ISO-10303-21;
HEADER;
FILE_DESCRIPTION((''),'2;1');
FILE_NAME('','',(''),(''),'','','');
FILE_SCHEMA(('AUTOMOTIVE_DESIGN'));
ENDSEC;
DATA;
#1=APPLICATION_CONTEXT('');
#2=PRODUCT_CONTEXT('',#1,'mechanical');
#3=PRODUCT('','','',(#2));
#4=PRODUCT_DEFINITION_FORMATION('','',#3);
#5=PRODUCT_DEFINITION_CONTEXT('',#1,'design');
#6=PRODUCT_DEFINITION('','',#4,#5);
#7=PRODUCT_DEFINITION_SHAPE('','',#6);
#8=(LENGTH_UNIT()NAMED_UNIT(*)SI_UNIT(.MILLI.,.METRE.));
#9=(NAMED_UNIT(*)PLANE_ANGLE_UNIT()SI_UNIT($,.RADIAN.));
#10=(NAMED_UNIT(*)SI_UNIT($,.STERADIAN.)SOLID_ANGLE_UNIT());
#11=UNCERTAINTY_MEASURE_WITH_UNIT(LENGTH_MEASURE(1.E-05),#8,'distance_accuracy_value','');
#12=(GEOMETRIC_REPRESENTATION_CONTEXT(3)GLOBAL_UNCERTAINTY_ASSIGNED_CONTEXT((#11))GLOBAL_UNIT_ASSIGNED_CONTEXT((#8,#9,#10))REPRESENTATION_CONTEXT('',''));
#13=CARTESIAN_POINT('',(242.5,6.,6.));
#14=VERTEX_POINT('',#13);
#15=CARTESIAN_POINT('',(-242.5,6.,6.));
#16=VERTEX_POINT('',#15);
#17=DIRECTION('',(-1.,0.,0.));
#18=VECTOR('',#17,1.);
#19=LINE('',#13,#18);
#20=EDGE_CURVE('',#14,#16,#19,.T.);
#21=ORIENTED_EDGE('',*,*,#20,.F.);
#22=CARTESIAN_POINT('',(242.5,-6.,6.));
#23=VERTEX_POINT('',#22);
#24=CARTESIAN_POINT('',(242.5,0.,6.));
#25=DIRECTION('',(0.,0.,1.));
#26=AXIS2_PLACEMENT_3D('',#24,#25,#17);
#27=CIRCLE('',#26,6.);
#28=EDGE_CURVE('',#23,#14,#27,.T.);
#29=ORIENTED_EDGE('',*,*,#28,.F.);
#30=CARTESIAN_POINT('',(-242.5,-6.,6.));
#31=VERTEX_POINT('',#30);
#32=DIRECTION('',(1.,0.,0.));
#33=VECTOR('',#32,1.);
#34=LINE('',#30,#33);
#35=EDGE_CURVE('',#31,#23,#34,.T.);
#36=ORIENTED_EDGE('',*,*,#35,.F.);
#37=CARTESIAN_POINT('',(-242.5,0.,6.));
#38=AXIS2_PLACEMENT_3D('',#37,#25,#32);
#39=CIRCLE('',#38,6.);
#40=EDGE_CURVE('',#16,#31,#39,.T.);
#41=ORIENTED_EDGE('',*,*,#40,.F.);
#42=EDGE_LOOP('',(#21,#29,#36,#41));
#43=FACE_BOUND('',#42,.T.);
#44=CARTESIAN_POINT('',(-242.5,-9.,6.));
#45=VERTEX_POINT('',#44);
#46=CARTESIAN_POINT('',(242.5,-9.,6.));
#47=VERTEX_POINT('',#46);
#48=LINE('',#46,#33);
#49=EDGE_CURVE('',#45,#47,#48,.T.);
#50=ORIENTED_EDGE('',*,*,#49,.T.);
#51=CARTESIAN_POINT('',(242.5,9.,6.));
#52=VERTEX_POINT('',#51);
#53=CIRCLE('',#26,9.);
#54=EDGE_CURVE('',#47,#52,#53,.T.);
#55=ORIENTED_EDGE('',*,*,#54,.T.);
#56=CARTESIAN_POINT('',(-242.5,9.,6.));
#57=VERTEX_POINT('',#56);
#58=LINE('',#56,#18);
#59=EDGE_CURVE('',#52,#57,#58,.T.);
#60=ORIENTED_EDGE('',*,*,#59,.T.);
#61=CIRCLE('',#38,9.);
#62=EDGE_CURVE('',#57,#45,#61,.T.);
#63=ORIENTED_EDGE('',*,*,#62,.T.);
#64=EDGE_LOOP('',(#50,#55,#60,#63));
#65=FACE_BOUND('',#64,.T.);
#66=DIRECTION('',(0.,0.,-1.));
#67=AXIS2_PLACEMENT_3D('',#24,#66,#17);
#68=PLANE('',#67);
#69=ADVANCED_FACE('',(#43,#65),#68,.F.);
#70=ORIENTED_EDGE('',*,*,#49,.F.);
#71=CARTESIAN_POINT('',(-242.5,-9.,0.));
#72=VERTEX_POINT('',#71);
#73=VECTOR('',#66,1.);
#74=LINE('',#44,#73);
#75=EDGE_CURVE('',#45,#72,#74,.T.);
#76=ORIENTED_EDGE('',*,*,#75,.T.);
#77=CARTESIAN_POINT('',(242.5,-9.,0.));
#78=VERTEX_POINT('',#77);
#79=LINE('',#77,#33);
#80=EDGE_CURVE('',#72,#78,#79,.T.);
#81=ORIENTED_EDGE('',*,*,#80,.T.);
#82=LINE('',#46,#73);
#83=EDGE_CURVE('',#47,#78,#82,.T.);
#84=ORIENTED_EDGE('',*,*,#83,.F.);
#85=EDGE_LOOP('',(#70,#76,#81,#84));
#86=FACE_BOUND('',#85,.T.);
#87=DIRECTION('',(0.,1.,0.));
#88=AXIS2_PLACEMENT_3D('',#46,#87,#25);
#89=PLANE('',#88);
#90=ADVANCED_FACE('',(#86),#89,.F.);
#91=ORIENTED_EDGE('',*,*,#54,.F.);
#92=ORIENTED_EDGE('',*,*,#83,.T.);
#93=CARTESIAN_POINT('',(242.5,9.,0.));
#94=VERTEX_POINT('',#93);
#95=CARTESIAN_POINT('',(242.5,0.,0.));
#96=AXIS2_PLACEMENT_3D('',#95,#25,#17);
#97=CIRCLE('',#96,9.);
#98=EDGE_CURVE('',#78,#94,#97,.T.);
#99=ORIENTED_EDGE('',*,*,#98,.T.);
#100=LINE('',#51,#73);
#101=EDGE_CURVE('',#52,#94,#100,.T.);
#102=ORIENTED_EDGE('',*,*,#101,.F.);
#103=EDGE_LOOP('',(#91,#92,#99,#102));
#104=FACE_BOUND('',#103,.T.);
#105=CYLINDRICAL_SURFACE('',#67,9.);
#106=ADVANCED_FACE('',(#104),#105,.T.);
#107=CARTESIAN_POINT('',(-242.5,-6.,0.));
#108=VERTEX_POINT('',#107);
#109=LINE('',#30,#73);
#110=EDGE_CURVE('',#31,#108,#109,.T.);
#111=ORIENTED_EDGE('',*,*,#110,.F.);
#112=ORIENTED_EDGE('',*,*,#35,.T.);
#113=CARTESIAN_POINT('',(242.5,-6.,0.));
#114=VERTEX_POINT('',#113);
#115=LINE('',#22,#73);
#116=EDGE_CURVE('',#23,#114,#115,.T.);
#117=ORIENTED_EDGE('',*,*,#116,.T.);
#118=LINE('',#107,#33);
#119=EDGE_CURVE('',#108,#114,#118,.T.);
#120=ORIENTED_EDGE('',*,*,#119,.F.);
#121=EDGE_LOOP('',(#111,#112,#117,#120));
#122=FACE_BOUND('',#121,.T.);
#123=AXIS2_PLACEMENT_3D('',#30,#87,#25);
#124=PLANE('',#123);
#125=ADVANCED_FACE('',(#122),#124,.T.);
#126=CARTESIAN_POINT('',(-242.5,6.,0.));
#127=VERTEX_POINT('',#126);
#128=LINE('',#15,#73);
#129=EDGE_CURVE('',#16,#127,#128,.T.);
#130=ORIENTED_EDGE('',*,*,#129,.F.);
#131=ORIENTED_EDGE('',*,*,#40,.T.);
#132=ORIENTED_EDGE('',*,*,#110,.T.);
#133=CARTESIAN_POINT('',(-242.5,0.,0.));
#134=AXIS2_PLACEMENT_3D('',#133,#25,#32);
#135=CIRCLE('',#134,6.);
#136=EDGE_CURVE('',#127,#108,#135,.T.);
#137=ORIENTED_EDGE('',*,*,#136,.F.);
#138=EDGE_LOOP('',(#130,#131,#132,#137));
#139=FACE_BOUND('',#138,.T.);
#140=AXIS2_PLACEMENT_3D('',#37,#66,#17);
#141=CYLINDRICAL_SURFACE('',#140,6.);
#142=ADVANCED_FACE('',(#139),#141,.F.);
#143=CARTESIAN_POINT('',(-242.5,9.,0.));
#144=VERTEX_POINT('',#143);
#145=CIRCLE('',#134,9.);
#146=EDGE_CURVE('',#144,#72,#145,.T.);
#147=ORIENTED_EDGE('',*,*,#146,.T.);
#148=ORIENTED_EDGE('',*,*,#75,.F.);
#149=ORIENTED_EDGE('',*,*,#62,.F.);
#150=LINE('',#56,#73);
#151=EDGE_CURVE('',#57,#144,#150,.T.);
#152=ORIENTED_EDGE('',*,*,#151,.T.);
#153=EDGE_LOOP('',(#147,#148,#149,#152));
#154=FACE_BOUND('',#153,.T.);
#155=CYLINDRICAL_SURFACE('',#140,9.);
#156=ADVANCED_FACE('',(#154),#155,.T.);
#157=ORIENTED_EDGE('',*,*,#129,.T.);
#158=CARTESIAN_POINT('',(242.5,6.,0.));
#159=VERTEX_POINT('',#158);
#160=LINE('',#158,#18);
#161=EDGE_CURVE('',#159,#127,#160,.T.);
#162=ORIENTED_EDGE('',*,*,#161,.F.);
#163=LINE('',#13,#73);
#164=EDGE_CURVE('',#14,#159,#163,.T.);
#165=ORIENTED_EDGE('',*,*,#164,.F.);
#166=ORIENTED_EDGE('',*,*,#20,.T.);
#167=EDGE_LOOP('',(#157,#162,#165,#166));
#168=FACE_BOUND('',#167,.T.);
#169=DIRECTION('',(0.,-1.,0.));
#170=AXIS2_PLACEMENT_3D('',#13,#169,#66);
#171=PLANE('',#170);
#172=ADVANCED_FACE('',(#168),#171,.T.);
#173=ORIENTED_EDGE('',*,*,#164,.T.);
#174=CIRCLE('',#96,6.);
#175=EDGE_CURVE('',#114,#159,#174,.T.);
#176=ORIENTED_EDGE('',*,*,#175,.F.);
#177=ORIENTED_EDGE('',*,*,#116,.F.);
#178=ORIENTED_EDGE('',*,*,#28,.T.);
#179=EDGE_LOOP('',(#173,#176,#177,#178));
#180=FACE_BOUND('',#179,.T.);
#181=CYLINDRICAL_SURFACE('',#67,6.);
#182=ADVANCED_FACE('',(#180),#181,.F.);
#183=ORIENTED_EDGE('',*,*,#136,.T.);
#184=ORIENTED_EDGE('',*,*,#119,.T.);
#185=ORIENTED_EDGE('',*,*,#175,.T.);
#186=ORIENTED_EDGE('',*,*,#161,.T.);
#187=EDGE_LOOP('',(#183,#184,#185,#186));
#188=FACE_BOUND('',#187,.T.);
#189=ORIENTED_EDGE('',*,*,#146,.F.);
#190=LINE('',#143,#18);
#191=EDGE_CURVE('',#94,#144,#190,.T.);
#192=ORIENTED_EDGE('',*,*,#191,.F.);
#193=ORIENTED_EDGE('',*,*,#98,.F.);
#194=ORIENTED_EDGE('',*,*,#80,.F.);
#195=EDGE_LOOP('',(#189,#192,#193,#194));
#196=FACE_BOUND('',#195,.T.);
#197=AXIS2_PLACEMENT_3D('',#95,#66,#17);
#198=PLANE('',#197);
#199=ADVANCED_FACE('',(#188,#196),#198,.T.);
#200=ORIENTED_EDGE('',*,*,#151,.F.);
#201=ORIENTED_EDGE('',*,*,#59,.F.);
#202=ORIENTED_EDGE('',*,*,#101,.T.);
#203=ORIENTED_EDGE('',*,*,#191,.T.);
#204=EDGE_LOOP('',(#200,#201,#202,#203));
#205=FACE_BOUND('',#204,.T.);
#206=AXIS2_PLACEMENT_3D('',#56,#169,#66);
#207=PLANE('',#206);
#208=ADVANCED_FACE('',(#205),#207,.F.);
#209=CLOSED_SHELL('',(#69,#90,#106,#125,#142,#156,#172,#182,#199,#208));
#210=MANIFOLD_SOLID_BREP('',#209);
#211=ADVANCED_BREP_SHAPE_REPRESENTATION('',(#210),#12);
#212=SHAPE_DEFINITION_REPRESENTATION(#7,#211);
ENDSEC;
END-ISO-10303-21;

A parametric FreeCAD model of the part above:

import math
import FreeCAD as App
import Part
import Sketcher
from FreeCAD import Vector

doc = App.newDocument("Part")
body = doc.addObject("PartDesign::Body", "Body")

# Sketch on XY plane
sketch1 = body.newObject("Sketcher::SketchObject", "Sketch")
sketch1.AttachmentSupport = (doc.getObject("XY_Plane"), [""])
sketch1.MapMode = "FlatFace"
sketch1.addGeometry(Part.LineSegment(Vector(242.5, 9, 0), Vector(-242.5, 9, 0)), False)
sketch1.addGeometry(Part.ArcOfCircle(Part.Circle(Vector(-242.5, 0, 0), Vector(0, 0, 1), 9), math.radians(90), math.radians(270)), False)
sketch1.addGeometry(Part.LineSegment(Vector(-242.5, -9, 0), Vector(242.5, -9, 0)), False)
sketch1.addGeometry(Part.ArcOfCircle(Part.Circle(Vector(242.5, 0, 0), Vector(0, 0, 1), 9), math.radians(-90), math.radians(90)), False)
sketch1.addGeometry(Part.ArcOfCircle(Part.Circle(Vector(-242.5, 0, 0), Vector(0, 0, 1), 6), math.radians(90), math.radians(270)), False)
sketch1.addGeometry(Part.LineSegment(Vector(-242.5, 6, 0), Vector(242.5, 6, 0)), False)
sketch1.addGeometry(Part.ArcOfCircle(Part.Circle(Vector(242.5, 0, 0), Vector(0, 0, 1), 6), math.radians(-90), math.radians(90)), False)
sketch1.addGeometry(Part.LineSegment(Vector(242.5, -6, 0), Vector(-242.5, -6, 0)), False)
sketch1.addConstraint(Sketcher.Constraint("Tangent", 0, 2, 1, 1))
sketch1.addConstraint(Sketcher.Constraint("Tangent", 1, 2, 2, 1))
sketch1.addConstraint(Sketcher.Constraint("Tangent", 2, 2, 3, 1))
sketch1.addConstraint(Sketcher.Constraint("Tangent", 3, 2, 0, 1))
sketch1.addConstraint(Sketcher.Constraint("Tangent", 4, 1, 5, 1))
sketch1.addConstraint(Sketcher.Constraint("Tangent", 5, 2, 6, 2))
sketch1.addConstraint(Sketcher.Constraint("Tangent", 6, 1, 7, 1))
sketch1.addConstraint(Sketcher.Constraint("Tangent", 7, 2, 4, 2))
sketch1.addConstraint(Sketcher.Constraint("Horizontal", 0))
sketch1.addConstraint(Sketcher.Constraint("Horizontal", 2))
sketch1.addConstraint(Sketcher.Constraint("Horizontal", 5))
sketch1.addConstraint(Sketcher.Constraint("Horizontal", 7))
sketch1.addConstraint(Sketcher.Constraint("Coincident", 4, 3, 1, 3))
sketch1.addConstraint(Sketcher.Constraint("Symmetric", 1, 3, 3, 3, -1, 1))
sketch1.addConstraint(Sketcher.Constraint("Vertical", 6, 3, 2, 2))
sketch1.addConstraint(Sketcher.Constraint("Radius", 1, 9.0))
sketch1.addConstraint(Sketcher.Constraint("Radius", 4, 6.0))
sketch1.addConstraint(Sketcher.Constraint("DistanceX", 0, 2, 0, 1, 485.0))
pad1 = body.newObject("PartDesign::Pad", "Pad")
pad1.Profile = sketch1
pad1.Length = 6

doc.recompute()
